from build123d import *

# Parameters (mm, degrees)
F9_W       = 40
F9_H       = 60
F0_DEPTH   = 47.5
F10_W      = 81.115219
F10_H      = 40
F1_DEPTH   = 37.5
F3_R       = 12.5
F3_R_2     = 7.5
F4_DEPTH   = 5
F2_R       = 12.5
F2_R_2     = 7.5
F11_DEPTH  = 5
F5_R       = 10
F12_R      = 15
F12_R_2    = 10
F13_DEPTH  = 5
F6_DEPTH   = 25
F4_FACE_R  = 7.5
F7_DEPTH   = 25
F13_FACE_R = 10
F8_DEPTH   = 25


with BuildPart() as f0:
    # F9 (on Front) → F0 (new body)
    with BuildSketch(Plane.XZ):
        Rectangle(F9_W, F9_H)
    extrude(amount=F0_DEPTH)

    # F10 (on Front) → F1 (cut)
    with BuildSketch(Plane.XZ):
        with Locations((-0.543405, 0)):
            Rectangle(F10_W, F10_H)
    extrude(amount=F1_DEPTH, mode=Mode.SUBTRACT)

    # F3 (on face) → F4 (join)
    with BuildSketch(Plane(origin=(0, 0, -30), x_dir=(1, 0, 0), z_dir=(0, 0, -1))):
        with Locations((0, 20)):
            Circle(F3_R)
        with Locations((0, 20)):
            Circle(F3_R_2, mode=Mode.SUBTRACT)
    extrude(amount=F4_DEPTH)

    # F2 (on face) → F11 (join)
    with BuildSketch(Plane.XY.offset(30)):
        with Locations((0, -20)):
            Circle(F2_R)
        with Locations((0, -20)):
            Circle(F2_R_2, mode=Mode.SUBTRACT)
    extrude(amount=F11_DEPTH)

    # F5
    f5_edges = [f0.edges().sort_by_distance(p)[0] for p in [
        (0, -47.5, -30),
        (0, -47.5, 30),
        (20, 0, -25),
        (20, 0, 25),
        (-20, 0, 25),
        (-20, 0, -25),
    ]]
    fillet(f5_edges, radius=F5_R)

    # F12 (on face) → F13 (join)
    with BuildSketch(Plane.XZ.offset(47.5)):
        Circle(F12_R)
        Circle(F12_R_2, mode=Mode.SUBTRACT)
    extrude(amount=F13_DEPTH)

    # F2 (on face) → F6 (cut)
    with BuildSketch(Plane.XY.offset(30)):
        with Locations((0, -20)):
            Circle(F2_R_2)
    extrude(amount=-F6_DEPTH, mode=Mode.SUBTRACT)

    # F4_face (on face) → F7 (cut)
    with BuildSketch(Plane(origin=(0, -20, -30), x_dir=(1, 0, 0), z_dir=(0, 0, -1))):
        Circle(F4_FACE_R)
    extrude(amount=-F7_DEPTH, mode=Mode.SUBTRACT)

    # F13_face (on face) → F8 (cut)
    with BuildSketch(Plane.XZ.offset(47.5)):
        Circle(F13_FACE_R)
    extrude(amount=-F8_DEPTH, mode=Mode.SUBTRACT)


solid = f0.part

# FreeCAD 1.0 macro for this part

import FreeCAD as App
import Part
import Sketcher
from FreeCAD import Vector
Q = App.Units.Quantity


def edges_at(feature, points):
    """Names of the edges that pass closest to the given points."""
    edges = feature.Shape.Edges
    near = lambda p: min(range(len(edges)), key=lambda i: edges[i].distToShape(Part.Vertex(*p))[0])
    return sorted({f"Edge{near(p) + 1}" for p in points})

doc = App.newDocument("Part")
body = doc.addObject("PartDesign::Body", "Body")

# Sketch on XZ plane
sketch1 = body.newObject("Sketcher::SketchObject", "Sketch")
sketch1.AttachmentSupport = (doc.getObject("XZ_Plane"), [""])
sketch1.MapMode = "FlatFace"
sketch1.addGeometry(Part.LineSegment(Vector(-20, 30, 0), Vector(-20, -30, 0)), False)
sketch1.addGeometry(Part.LineSegment(Vector(-20, -30, 0), Vector(20, -30, 0)), False)
sketch1.addGeometry(Part.LineSegment(Vector(20, -30, 0), Vector(20, 30, 0)), False)
sketch1.addGeometry(Part.LineSegment(Vector(20, 30, 0), Vector(-20, 30, 0)), False)
sketch1.addConstraint(Sketcher.Constraint("Coincident", 0, 2, 1, 1))
sketch1.addConstraint(Sketcher.Constraint("Coincident", 1, 2, 2, 1))
sketch1.addConstraint(Sketcher.Constraint("Coincident", 2, 2, 3, 1))
sketch1.addConstraint(Sketcher.Constraint("Coincident", 3, 2, 0, 1))
sketch1.addConstraint(Sketcher.Constraint("Vertical", 0))
sketch1.addConstraint(Sketcher.Constraint("Horizontal", 1))
sketch1.addConstraint(Sketcher.Constraint("Vertical", 2))
sketch1.addConstraint(Sketcher.Constraint("Horizontal", 3))
sketch1.addConstraint(Sketcher.Constraint("Symmetric", 0, 2, 2, 2, -1, 1))
sketch1.addConstraint(Sketcher.Constraint("DistanceX", 1, 1, 1, 2, Q("40 mm")))
sketch1.addConstraint(Sketcher.Constraint("DistanceY", 0, 2, 0, 1, Q("60 mm")))
pad1 = body.newObject("PartDesign::Pad", "Pad")
pad1.Profile = sketch1
pad1.Length = 47.5

# Sketch on XZ plane
sketch2 = body.newObject("Sketcher::SketchObject", "Sketch001")
sketch2.AttachmentSupport = (doc.getObject("XZ_Plane"), [""])
sketch2.MapMode = "FlatFace"
sketch2.addGeometry(Part.LineSegment(Vector(-41, 20, 0), Vector(-41, -20, 0)), False)
sketch2.addGeometry(Part.LineSegment(Vector(-41, -20, 0), Vector(40, -20, 0)), False)
sketch2.addGeometry(Part.LineSegment(Vector(40, -20, 0), Vector(40, 20, 0)), False)
sketch2.addGeometry(Part.LineSegment(Vector(40, 20, 0), Vector(-41, 20, 0)), False)
sketch2.addConstraint(Sketcher.Constraint("Coincident", 0, 2, 1, 1))
sketch2.addConstraint(Sketcher.Constraint("Coincident", 1, 2, 2, 1))
sketch2.addConstraint(Sketcher.Constraint("Coincident", 2, 2, 3, 1))
sketch2.addConstraint(Sketcher.Constraint("Coincident", 3, 2, 0, 1))
sketch2.addConstraint(Sketcher.Constraint("Vertical", 0))
sketch2.addConstraint(Sketcher.Constraint("Horizontal", 1))
sketch2.addConstraint(Sketcher.Constraint("Vertical", 2))
sketch2.addConstraint(Sketcher.Constraint("Horizontal", 3))
sketch2.addConstraint(Sketcher.Constraint("DistanceY", 0, 2, 0, 1, Q("40 mm")))
sketch2.addConstraint(Sketcher.Constraint("DistanceY", 0, 2, -1, 1, Q("20 mm")))
sketch2.addConstraint(Sketcher.Constraint("DistanceX", 1, 1, 1, 2, Q("81.115219 mm")))
sketch2.addConstraint(Sketcher.Constraint("DistanceX", 0, 2, -1, 1, Q("41.101014 mm")))
pocket1 = body.newObject("PartDesign::Pocket", "Pocket")
pocket1.Profile = sketch2
pocket1.Length = 37.5
pocket1.Reversed = True

# Sketch on XY plane
sketch3 = body.newObject("Sketcher::SketchObject", "Sketch002")
sketch3.AttachmentSupport = (doc.getObject("XY_Plane"), [""])
sketch3.MapMode = "FlatFace"
sketch3.AttachmentOffset = App.Placement(Vector(0, 0, -30), App.Rotation())
sketch3.addGeometry(Part.Circle(Vector(0, -20, 0), Vector(0, 0, 1), 12), False)
sketch3.addGeometry(Part.Circle(Vector(0, -20, 0), Vector(0, 0, 1), 8), False)
sketch3.addConstraint(Sketcher.Constraint("Coincident", 1, 3, 0, 3))
sketch3.addConstraint(Sketcher.Constraint("PointOnObject", 0, 3, -2))
sketch3.addConstraint(Sketcher.Constraint("Diameter", 0, Q("25 mm")))
sketch3.addConstraint(Sketcher.Constraint("Diameter", 1, Q("15 mm")))
sketch3.addConstraint(Sketcher.Constraint("DistanceY", 0, 3, -1, 1, Q("20 mm")))
pad2 = body.newObject("PartDesign::Pad", "Pad001")
pad2.Profile = sketch3
pad2.Length = 5
pad2.Reversed = True

# Sketch on XY plane
sketch4 = body.newObject("Sketcher::SketchObject", "Sketch003")
sketch4.AttachmentSupport = (doc.getObject("XY_Plane"), [""])
sketch4.MapMode = "FlatFace"
sketch4.AttachmentOffset = App.Placement(Vector(0, 0, 30), App.Rotation())
sketch4.addGeometry(Part.Circle(Vector(0, -20, 0), Vector(0, 0, 1), 12), False)
sketch4.addGeometry(Part.Circle(Vector(0, -20, 0), Vector(0, 0, 1), 8), False)
sketch4.addConstraint(Sketcher.Constraint("Coincident", 1, 3, 0, 3))
sketch4.addConstraint(Sketcher.Constraint("PointOnObject", 0, 3, -2))
sketch4.addConstraint(Sketcher.Constraint("Diameter", 0, Q("25 mm")))
sketch4.addConstraint(Sketcher.Constraint("Diameter", 1, Q("15 mm")))
sketch4.addConstraint(Sketcher.Constraint("DistanceY", 0, 3, -1, 1, Q("20 mm")))
pad3 = body.newObject("PartDesign::Pad", "Pad002")
pad3.Profile = sketch4
pad3.Length = 5
doc.recompute()

fillet = body.newObject("PartDesign::Fillet", "Fillet")
fillet.Base = (pad3, edges_at(pad3, [
    (0, -47.5, -30),
    (0, -47.5, 30),
    (20, 0, -25),
    (20, 0, 25),
    (-20, 0, 25),
    (-20, 0, -25),
]))
fillet.Radius = 10

# Sketch on XZ plane
sketch5 = body.newObject("Sketcher::SketchObject", "Sketch004")
sketch5.AttachmentSupport = (doc.getObject("XZ_Plane"), [""])
sketch5.MapMode = "FlatFace"
sketch5.AttachmentOffset = App.Placement(Vector(0, 0, 47.5), App.Rotation())
sketch5.addGeometry(Part.Circle(Vector(0, 0, 0), Vector(0, 0, 1), 15), False)
sketch5.addGeometry(Part.Circle(Vector(0, 0, 0), Vector(0, 0, 1), 10), False)
sketch5.addConstraint(Sketcher.Constraint("Coincident", 0, 3, -1, 1))
sketch5.addConstraint(Sketcher.Constraint("Coincident", 1, 3, -1, 1))
sketch5.addConstraint(Sketcher.Constraint("Diameter", 0, Q("30 mm")))
sketch5.addConstraint(Sketcher.Constraint("Diameter", 1, Q("20 mm")))
pad4 = body.newObject("PartDesign::Pad", "Pad003")
pad4.Profile = sketch5
pad4.Length = 5

# Sketch on XY plane
sketch6 = body.newObject("Sketcher::SketchObject", "Sketch005")
sketch6.AttachmentSupport = (doc.getObject("XY_Plane"), [""])
sketch6.MapMode = "FlatFace"
sketch6.AttachmentOffset = App.Placement(Vector(0, 0, 30), App.Rotation())
sketch6.addGeometry(Part.Circle(Vector(0, -20, 0), Vector(0, 0, 1), 8), False)
sketch6.addConstraint(Sketcher.Constraint("PointOnObject", 0, 3, -2))
sketch6.addConstraint(Sketcher.Constraint("Diameter", 0, Q("15 mm")))
sketch6.addConstraint(Sketcher.Constraint("DistanceY", 0, 3, -1, 1, Q("20 mm")))
pocket2 = body.newObject("PartDesign::Pocket", "Pocket001")
pocket2.Profile = sketch6
pocket2.Length = 25

# Sketch on XY plane
sketch7 = body.newObject("Sketcher::SketchObject", "Sketch006")
sketch7.AttachmentSupport = (doc.getObject("XY_Plane"), [""])
sketch7.MapMode = "FlatFace"
sketch7.AttachmentOffset = App.Placement(Vector(0, 0, -30), App.Rotation())
sketch7.addGeometry(Part.Circle(Vector(0, -20, 0), Vector(0, 0, 1), 8), False)
sketch7.addConstraint(Sketcher.Constraint("PointOnObject", 0, 3, -2))
sketch7.addConstraint(Sketcher.Constraint("Diameter", 0, Q("15 mm")))
sketch7.addConstraint(Sketcher.Constraint("DistanceY", 0, 3, -1, 1, Q("20 mm")))
pocket3 = body.newObject("PartDesign::Pocket", "Pocket002")
pocket3.Profile = sketch7
pocket3.Length = 25
pocket3.Reversed = True

# Sketch on XZ plane
sketch8 = body.newObject("Sketcher::SketchObject", "Sketch007")
sketch8.AttachmentSupport = (doc.getObject("XZ_Plane"), [""])
sketch8.MapMode = "FlatFace"
sketch8.AttachmentOffset = App.Placement(Vector(0, 0, 47.5), App.Rotation())
sketch8.addGeometry(Part.Circle(Vector(0, 0, 0), Vector(0, 0, 1), 10), False)
sketch8.addConstraint(Sketcher.Constraint("Coincident", 0, 3, -1, 1))
sketch8.addConstraint(Sketcher.Constraint("Diameter", 0, Q("20 mm")))
pocket4 = body.newObject("PartDesign::Pocket", "Pocket003")
pocket4.Profile = sketch8
pocket4.Length = 25

doc.recompute()
